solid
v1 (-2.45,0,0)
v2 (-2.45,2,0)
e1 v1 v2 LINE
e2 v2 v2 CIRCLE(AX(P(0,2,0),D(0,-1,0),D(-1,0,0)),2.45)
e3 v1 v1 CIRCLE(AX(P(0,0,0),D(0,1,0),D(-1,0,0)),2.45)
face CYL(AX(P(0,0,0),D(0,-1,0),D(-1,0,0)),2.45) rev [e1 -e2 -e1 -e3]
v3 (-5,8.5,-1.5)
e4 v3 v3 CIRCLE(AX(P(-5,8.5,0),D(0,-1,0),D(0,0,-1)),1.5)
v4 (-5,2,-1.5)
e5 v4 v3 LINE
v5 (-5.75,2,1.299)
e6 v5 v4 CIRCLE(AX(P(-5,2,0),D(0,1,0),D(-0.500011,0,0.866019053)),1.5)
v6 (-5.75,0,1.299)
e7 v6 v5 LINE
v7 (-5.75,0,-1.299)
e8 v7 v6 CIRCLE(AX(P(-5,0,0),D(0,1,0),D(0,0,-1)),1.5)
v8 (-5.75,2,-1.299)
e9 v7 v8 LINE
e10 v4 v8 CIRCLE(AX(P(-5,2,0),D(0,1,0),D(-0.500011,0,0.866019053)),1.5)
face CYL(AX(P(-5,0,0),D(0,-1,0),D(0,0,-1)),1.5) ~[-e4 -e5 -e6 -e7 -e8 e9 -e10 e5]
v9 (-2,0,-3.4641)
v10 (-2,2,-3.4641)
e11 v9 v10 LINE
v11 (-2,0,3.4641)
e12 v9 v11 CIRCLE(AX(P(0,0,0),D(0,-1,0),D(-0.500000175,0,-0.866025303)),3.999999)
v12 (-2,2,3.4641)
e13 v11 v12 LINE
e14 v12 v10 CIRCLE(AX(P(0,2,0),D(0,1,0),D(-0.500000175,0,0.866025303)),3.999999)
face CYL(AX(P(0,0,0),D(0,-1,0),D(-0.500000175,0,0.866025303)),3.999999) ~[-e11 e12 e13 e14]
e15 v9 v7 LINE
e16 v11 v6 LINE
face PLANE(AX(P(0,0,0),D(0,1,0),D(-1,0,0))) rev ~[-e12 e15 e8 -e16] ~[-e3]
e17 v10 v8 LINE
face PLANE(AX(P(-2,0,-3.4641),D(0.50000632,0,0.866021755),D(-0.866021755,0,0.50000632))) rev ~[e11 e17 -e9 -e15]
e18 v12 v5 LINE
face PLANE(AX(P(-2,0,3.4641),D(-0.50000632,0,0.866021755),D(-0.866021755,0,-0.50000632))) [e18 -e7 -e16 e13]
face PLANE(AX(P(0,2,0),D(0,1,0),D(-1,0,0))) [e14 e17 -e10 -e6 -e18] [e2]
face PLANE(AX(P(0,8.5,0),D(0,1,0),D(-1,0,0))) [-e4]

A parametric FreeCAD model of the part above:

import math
import FreeCAD as App
import Part
import Sketcher
from FreeCAD import Vector

doc = App.newDocument("Part")
body = doc.addObject("PartDesign::Body", "Body")

sketch1 = body.newObject("Sketcher::SketchObject", "Sketch")
sketch1.AttachmentSupport = (doc.getObject("XZ_Plane"), [""])
sketch1.MapMode = "FlatFace"
sketch1.addGeometry(Part.LineSegment(Vector(-5.8, 1.3, 0), Vector(-2, 3.5, 0)), False)
sketch1.addGeometry(Part.ArcOfCircle(Part.Circle(Vector(0, 0, 0), Vector(0, 0, 1), 4), math.radians(-120), math.radians(120)), False)
sketch1.addGeometry(Part.LineSegment(Vector(-2, -3.5, 0), Vector(-5.8, -1.3, 0)), False)
sketch1.addGeometry(Part.ArcOfCircle(Part.Circle(Vector(-5, 0, 0), Vector(0, 0, 1), 1.5), math.radians(-120), math.radians(120)), False)
sketch1.addGeometry(Part.Circle(Vector(0, 0, 0), Vector(0, 0, 1), 2.5), False)
sketch1.addConstraint(Sketcher.Constraint("Tangent", 0, 2, 1, 2))
sketch1.addConstraint(Sketcher.Constraint("Tangent", 1, 1, 2, 1))
sketch1.addConstraint(Sketcher.Constraint("Tangent", 2, 2, 3, 1))
sketch1.addConstraint(Sketcher.Constraint("Tangent", 3, 2, 0, 1))
sketch1.addConstraint(Sketcher.Constraint("Coincident", 1, 3, -1, 1))
sketch1.addConstraint(Sketcher.Constraint("Coincident", 4, 3, -1, 1))
sketch1.addConstraint(Sketcher.Constraint("PointOnObject", 3, 3, -1))
sketch1.addConstraint(Sketcher.Constraint("Radius", 1, 4.0))
sketch1.addConstraint(Sketcher.Constraint("Diameter", 4, 4.9))
sketch1.addConstraint(Sketcher.Constraint("Radius", 3, 1.5))
sketch1.addConstraint(Sketcher.Constraint("DistanceX", 3, 3, -1, 1, 5.0))
pad1 = body.newObject("PartDesign::Pad", "Pad")
pad1.Profile = sketch1
pad1.Length = 2
pad1.Reversed = True

sketch2 = body.newObject("Sketcher::SketchObject", "Sketch001")
sketch2.AttachmentSupport = (doc.getObject("XZ_Plane"), [""])
sketch2.MapMode = "FlatFace"
sketch2.addGeometry(Part.Circle(Vector(-5, 0, 0), Vector(0, 0, 1), 1.5), False)
sketch2.addConstraint(Sketcher.Constraint("PointOnObject", 0, 3, -1))
sketch2.addConstraint(Sketcher.Constraint("Diameter", 0, 3.0))
sketch2.addConstraint(Sketcher.Constraint("DistanceX", 0, 3, -1, 1, 5.0))
pad2 = body.newObject("PartDesign::Pad", "Pad001")
pad2.Profile = sketch2
pad2.Length = 8.5
pad2.Reversed = True

doc.recompute()
